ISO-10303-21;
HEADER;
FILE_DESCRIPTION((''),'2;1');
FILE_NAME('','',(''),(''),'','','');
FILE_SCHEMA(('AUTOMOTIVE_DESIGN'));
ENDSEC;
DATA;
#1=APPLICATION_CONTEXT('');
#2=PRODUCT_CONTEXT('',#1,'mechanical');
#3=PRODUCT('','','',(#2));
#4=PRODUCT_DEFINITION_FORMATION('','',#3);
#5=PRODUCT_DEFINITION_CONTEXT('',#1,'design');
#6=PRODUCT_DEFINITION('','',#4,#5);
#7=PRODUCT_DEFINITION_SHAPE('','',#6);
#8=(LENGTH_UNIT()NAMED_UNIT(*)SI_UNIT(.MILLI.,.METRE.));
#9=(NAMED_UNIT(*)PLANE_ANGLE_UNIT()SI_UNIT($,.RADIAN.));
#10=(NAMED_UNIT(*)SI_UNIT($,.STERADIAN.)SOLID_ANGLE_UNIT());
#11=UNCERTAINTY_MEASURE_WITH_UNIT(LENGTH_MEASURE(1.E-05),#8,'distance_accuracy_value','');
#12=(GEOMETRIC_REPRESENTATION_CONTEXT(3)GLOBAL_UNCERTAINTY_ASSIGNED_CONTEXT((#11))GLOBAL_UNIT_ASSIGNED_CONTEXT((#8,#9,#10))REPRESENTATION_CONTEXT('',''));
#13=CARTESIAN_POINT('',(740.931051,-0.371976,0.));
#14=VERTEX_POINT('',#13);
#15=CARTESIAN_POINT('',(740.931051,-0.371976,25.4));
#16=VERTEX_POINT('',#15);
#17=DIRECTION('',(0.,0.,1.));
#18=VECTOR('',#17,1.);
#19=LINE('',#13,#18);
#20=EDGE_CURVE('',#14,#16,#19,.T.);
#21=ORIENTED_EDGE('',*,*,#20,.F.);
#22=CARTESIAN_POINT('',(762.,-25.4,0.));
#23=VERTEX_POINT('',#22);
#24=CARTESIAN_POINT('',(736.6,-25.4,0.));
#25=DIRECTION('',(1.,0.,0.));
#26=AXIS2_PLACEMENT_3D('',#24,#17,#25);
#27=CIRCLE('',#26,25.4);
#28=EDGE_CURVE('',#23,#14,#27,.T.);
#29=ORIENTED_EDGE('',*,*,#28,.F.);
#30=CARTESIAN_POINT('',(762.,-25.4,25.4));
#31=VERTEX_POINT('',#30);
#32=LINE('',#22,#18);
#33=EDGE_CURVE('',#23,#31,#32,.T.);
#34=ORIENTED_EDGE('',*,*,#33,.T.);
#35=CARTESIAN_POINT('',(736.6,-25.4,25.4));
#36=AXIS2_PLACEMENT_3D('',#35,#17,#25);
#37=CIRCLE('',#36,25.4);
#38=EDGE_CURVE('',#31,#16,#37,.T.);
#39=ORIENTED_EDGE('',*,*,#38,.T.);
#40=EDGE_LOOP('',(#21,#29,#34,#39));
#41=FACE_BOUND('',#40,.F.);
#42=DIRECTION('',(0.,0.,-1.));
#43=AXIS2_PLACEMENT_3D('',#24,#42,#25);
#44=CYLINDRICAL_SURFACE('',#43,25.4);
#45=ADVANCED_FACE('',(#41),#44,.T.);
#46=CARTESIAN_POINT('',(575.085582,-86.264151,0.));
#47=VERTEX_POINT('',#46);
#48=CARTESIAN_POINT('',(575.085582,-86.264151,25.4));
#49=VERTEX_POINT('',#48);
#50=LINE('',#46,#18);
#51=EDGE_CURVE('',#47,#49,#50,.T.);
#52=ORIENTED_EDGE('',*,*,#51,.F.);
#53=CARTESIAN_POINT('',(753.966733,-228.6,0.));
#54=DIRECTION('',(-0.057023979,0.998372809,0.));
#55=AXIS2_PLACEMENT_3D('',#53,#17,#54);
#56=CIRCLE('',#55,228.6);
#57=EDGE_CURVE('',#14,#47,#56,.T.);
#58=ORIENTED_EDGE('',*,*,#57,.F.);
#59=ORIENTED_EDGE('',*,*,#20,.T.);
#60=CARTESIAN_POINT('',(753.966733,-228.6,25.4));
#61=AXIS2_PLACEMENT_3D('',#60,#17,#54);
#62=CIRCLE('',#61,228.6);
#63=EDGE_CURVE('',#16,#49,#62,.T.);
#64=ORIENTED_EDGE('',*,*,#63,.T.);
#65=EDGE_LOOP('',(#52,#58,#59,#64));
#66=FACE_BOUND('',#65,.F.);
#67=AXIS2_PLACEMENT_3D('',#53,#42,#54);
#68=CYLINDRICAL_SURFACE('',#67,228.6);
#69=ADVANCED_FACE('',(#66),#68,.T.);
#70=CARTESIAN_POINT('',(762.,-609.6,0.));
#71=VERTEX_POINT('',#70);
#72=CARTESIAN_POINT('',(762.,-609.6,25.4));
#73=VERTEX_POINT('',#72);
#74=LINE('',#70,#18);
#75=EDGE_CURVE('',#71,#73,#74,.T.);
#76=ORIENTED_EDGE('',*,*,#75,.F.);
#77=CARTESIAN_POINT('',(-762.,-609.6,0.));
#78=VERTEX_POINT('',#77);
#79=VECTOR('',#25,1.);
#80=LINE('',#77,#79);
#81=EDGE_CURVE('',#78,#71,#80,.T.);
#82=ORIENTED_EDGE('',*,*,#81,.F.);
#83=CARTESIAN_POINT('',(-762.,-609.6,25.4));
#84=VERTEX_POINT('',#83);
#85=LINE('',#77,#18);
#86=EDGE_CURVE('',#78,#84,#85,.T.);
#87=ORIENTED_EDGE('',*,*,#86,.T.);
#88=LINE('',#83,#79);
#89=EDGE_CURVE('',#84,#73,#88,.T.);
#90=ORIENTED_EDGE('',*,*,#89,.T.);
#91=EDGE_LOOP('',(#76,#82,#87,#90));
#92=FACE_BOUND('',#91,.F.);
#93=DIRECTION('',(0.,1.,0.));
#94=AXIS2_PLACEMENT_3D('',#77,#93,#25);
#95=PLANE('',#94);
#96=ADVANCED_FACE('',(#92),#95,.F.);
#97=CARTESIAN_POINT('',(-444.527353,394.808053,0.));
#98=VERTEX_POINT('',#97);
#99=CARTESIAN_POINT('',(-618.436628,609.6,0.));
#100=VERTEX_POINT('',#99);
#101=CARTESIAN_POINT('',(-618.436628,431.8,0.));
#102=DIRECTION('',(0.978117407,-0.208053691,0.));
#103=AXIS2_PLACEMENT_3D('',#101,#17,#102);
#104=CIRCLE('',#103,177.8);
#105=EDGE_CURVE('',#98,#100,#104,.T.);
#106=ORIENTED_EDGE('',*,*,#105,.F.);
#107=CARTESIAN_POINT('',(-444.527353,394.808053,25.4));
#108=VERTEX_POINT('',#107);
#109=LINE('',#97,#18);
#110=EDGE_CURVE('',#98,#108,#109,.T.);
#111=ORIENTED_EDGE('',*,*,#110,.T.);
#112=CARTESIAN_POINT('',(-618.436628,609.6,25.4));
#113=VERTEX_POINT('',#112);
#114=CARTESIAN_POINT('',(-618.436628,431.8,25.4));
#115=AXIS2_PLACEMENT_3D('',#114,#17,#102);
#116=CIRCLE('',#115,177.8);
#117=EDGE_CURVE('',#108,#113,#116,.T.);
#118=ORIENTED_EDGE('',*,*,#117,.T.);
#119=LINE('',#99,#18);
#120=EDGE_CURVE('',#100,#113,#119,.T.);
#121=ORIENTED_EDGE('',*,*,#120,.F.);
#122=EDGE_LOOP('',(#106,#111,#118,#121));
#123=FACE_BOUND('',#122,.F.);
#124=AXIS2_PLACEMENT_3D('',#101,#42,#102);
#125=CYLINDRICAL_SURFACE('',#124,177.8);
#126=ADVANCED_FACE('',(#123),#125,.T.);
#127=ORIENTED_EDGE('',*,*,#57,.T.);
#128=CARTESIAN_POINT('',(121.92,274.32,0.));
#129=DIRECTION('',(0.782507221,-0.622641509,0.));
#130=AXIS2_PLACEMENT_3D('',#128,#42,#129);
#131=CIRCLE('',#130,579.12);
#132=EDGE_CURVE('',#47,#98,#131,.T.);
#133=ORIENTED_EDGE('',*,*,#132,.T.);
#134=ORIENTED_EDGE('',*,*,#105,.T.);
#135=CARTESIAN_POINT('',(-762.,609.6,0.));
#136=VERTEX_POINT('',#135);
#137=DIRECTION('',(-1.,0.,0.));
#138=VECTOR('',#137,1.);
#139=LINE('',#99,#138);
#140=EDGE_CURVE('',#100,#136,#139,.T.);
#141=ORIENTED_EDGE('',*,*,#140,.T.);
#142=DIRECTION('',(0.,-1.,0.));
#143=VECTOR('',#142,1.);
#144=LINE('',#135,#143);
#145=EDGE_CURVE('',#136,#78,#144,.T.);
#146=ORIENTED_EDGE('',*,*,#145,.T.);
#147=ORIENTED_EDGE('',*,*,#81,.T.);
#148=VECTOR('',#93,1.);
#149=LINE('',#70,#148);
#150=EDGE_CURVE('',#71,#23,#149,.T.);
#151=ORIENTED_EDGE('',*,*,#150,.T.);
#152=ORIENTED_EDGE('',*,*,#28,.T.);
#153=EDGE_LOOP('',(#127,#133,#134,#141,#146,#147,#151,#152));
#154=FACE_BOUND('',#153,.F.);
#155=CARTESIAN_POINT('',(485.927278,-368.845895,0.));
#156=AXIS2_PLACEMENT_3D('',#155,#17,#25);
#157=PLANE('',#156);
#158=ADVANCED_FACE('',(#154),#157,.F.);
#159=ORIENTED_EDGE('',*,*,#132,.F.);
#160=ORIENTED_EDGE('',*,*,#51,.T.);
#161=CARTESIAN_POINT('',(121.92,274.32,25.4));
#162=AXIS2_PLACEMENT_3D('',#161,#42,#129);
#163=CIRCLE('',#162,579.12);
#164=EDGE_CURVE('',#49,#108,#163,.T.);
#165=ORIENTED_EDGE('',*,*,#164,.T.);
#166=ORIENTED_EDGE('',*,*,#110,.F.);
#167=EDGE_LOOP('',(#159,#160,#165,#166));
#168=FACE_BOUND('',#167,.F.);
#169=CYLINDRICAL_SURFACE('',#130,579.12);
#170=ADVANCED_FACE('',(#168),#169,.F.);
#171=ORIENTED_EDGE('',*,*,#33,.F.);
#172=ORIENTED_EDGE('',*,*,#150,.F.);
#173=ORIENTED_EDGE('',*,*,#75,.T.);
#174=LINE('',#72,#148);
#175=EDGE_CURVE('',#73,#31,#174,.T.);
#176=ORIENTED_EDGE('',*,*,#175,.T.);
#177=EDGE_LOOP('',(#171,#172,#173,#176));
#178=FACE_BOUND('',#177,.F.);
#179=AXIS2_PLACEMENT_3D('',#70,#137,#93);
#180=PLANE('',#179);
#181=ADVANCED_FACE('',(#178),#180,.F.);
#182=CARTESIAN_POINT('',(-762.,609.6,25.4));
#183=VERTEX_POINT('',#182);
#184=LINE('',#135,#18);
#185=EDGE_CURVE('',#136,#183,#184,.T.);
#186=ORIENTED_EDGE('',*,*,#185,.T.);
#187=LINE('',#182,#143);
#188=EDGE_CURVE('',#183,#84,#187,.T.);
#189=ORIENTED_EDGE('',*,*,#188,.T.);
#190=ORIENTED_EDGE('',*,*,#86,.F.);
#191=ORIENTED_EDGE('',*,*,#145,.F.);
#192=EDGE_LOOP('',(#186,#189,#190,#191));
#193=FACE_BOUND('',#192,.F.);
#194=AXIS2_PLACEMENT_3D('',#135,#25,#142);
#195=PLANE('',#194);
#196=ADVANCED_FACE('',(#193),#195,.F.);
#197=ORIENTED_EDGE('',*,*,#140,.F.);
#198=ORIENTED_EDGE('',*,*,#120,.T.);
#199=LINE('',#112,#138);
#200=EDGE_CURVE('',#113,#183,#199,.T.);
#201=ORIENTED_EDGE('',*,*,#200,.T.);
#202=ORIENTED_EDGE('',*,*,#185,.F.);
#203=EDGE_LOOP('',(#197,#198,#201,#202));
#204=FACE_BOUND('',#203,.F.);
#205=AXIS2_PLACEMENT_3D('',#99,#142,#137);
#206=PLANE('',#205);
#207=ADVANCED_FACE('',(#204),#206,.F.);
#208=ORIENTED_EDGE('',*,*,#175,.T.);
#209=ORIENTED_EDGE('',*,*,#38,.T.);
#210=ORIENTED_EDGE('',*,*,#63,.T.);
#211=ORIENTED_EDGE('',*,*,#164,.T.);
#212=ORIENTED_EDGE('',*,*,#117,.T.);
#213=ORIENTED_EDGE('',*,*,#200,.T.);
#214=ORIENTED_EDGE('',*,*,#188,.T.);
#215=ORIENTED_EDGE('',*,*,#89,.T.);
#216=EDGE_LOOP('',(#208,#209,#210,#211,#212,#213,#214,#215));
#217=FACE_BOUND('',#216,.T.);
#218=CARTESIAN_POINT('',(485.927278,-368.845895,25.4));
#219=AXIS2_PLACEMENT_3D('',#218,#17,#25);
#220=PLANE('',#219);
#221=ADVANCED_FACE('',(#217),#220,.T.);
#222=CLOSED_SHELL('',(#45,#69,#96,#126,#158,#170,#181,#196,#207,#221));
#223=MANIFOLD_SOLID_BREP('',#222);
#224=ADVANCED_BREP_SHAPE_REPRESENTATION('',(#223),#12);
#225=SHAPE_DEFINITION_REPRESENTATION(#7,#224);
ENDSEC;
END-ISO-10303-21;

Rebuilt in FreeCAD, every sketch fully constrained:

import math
import FreeCAD as App
import Part
import Sketcher
from FreeCAD import Vector
Q = App.Units.Quantity

doc = App.newDocument("Part")
body = doc.addObject("PartDesign::Body", "Body")

sketch1 = body.newObject("Sketcher::SketchObject", "Sketch")
sketch1.AttachmentSupport = (doc.getObject("XY_Plane"), [""])
sketch1.MapMode = "FlatFace"
sketch1.addGeometry([
    Part.LineSegment(Vector(762, -610, 0), Vector(762, -25, 0)),
    Part.ArcOfCircle(Part.Circle(Vector(737, -25, 0), Vector(0, 0, 1), 25), math.radians(0), math.radians(80)),
    Part.ArcOfCircle(Part.Circle(Vector(754, -229, 0), Vector(0, 0, 1), 229), math.radians(93), math.radians(141)),
    Part.ArcOfCircle(Part.Circle(Vector(122, 274, 0), Vector(0, 0, 1), 579), math.radians(168), math.radians(321)),
    Part.ArcOfCircle(Part.Circle(Vector(-618, 432, 0), Vector(0, 0, 1), 178), math.radians(-12), math.radians(90)),
    Part.LineSegment(Vector(-618, 610, 0), Vector(-762, 610, 0)),
    Part.LineSegment(Vector(-762, 610, 0), Vector(-762, -610, 0)),
    Part.LineSegment(Vector(-762, -610, 0), Vector(762, -610, 0)),
], False)
sketch1.addConstraint([
    Sketcher.Constraint("Tangent", 0, 2, 1, 1),
    Sketcher.Constraint("Coincident", 1, 2, 2, 1),
    Sketcher.Constraint("Tangent", 2, 2, 3, 2),
    Sketcher.Constraint("Tangent", 3, 1, 4, 1),
    Sketcher.Constraint("Tangent", 4, 2, 5, 1),
    Sketcher.Constraint("Coincident", 5, 2, 6, 1),
    Sketcher.Constraint("Coincident", 6, 2, 7, 1),
    Sketcher.Constraint("Coincident", 7, 2, 0, 1),
    Sketcher.Constraint("Vertical", 0),
    Sketcher.Constraint("Horizontal", 5),
    Sketcher.Constraint("Vertical", 6),
    Sketcher.Constraint("Horizontal", 7),
    Sketcher.Constraint("Symmetric", 5, 2, 7, 2, -1, 1),
    Sketcher.Constraint("Radius", 1, Q("1 in")),
    Sketcher.Constraint("Radius", 2, Q("9 in")),
    Sketcher.Constraint("Radius", 4, Q("7 in")),
    Sketcher.Constraint("Radius", 3, Q("22.8 in")),
    Sketcher.Constraint("DistanceX", 7, 1, 7, 2, Q("60 in")),
    Sketcher.Constraint("DistanceY", 0, 1, 0, 2, Q("23 in")),
    Sketcher.Constraint("DistanceY", 6, 2, 6, 1, Q("48 in")),
    Sketcher.Constraint("DistanceY", 2, 3, -1, 1, Q("9 in")),
    Sketcher.Constraint("DistanceX", -1, 1, 3, 3, Q("4.8 in")),
    Sketcher.Constraint("DistanceY", -1, 1, 3, 3, Q("10.8 in")),
])
pad1 = body.newObject("PartDesign::Pad", "Pad")
pad1.Profile = sketch1
pad1.Length = Q("1 in")

doc.recompute()
